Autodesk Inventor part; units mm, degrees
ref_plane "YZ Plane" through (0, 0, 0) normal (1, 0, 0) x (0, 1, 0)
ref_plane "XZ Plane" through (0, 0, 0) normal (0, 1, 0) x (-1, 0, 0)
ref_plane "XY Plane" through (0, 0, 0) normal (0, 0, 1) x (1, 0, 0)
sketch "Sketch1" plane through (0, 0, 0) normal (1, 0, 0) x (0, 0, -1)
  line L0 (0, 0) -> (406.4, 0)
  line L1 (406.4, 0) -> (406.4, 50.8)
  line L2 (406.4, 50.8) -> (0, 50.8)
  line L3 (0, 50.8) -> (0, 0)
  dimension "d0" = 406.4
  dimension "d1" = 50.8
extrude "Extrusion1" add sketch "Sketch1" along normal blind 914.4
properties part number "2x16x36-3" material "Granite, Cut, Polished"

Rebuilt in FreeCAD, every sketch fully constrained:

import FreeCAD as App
import Part
import Sketcher
Q = App.Units.Quantity


def add_polygon(sketch, points):
    """Adds a closed chain of lines whose ends are joined by coincident constraints."""
    first, n = sketch.GeometryCount, len(points)
    for a, b in zip(points, points[1:] + points[:1]):
        sketch.addGeometry(Part.LineSegment(App.Vector(*a, 0), App.Vector(*b, 0)), False)
    for i in range(n):
        sketch.addConstraint(Sketcher.Constraint("Coincident", first + i, 2, first + (i + 1) % n, 1))

doc = App.newDocument("Part")
body = doc.addObject("PartDesign::Body", "Body")

sketch1 = body.newObject("Sketcher::SketchObject", "Sketch")
sketch1.AttachmentSupport = (doc.getObject("YZ_Plane"), [""])
sketch1.MapMode = "FlatFace"
add_polygon(sketch1, [(50.8, 0), (0, 0), (0, -406.4), (50.8, -406.4)])
sketch1.addConstraint([
    Sketcher.Constraint("Horizontal", 0),
    Sketcher.Constraint("Vertical", 1),
    Sketcher.Constraint("Horizontal", 2),
    Sketcher.Constraint("Vertical", 3),
    Sketcher.Constraint("Coincident", 0, 2, -1, 1),
    Sketcher.Constraint("DistanceX", 0, 2, 0, 1, Q("2 in")),
    Sketcher.Constraint("DistanceY", 1, 2, 1, 1, Q("16 in")),
])
pad1 = body.newObject("PartDesign::Pad", "Pad")
pad1.Profile = sketch1
pad1.Length = Q("36 in")

doc.recompute()
